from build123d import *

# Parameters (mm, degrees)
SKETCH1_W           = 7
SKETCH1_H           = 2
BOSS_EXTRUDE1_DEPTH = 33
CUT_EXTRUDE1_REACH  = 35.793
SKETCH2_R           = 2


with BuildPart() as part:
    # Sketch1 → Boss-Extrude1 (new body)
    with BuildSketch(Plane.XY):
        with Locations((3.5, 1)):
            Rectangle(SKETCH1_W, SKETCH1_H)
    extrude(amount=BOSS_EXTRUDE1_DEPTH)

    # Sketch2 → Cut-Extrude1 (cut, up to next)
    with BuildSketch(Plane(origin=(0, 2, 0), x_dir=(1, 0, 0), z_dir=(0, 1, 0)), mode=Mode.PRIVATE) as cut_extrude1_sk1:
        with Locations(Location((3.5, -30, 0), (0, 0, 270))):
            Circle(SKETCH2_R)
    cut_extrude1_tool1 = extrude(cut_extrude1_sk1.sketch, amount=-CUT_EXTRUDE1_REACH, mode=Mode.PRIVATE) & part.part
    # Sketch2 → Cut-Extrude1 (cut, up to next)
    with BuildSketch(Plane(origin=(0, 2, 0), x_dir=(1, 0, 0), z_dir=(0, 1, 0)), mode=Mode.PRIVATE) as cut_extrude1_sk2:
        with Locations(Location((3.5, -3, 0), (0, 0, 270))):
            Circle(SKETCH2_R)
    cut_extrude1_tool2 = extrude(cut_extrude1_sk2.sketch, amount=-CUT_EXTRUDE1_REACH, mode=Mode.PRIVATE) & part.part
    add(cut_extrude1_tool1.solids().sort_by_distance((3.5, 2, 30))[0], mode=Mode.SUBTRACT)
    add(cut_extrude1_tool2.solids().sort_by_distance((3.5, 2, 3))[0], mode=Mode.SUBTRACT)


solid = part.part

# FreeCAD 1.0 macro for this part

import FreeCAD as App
import Part
import Sketcher

V = App.Vector
Q = App.Units.Quantity

doc = App.newDocument("Part")
body = doc.addObject("PartDesign::Body", "Body")

# Sketch on XY plane
sketch1 = body.newObject("Sketcher::SketchObject", "Sketch")
sketch1.AttachmentSupport = (doc.getObject("XY_Plane"), [""])
sketch1.MapMode = "FlatFace"
sketch1.addGeometry([
    Part.LineSegment(V(0, 2, 0), V(0, 0, 0)),
    Part.LineSegment(V(0, 0, 0), V(7, 0, 0)),
    Part.LineSegment(V(7, 0, 0), V(7, 2, 0)),
    Part.LineSegment(V(7, 2, 0), V(0, 2, 0)),
], False)
sketch1.addConstraint([
    Sketcher.Constraint("Coincident", 0, 2, 1, 1),
    Sketcher.Constraint("Coincident", 1, 2, 2, 1),
    Sketcher.Constraint("Coincident", 2, 2, 3, 1),
    Sketcher.Constraint("Coincident", 3, 2, 0, 1),
    Sketcher.Constraint("Vertical", 0),
    Sketcher.Constraint("Horizontal", 1),
    Sketcher.Constraint("Vertical", 2),
    Sketcher.Constraint("Horizontal", 3),
    Sketcher.Constraint("Coincident", 0, 2, -1, 1),
    Sketcher.Constraint("DistanceX", 1, 1, 1, 2, Q("7 mm")),
    Sketcher.Constraint("DistanceY", 0, 2, 0, 1, Q("2 mm")),
])
pad1 = body.newObject("PartDesign::Pad", "Pad")
pad1.Profile = sketch1
pad1.Length = 33

# Sketch on XZ plane
sketch2 = body.newObject("Sketcher::SketchObject", "Sketch001")
sketch2.AttachmentSupport = (doc.getObject("XZ_Plane"), [""])
sketch2.MapMode = "FlatFace"
sketch2.AttachmentOffset = App.Placement(V(0, 0, -2), App.Rotation())
sketch2.addGeometry(Part.Circle(V(3.5, 30, 0), V(0, 0, 1), 2), False)
sketch2.addConstraint([
    Sketcher.Constraint("Diameter", 0, Q("4 mm")),
    Sketcher.Constraint("DistanceY", -1, 1, 0, 3, Q("30 mm")),
    Sketcher.Constraint("DistanceX", -1, 1, 0, 3, Q("3.5 mm")),
])
pocket1 = body.newObject("PartDesign::Pocket", "Pocket")
pocket1.Profile = sketch2
pocket1.Type = "UpToFirst"
pocket1.Reversed = True

# Sketch on XZ plane
sketch3 = body.newObject("Sketcher::SketchObject", "Sketch002")
sketch3.AttachmentSupport = (doc.getObject("XZ_Plane"), [""])
sketch3.MapMode = "FlatFace"
sketch3.AttachmentOffset = App.Placement(V(0, 0, -2), App.Rotation())
sketch3.addGeometry(Part.Circle(V(3.5, 3, 0), V(0, 0, 1), 2), False)
sketch3.addConstraint([
    Sketcher.Constraint("Diameter", 0, Q("4 mm")),
    Sketcher.Constraint("DistanceY", -1, 1, 0, 3, Q("3 mm")),
    Sketcher.Constraint("DistanceX", -1, 1, 0, 3, Q("3.5 mm")),
])
pocket2 = body.newObject("PartDesign::Pocket", "Pocket001")
pocket2.Profile = sketch3
pocket2.Type = "UpToFirst"
pocket2.Reversed = True

doc.recompute()
